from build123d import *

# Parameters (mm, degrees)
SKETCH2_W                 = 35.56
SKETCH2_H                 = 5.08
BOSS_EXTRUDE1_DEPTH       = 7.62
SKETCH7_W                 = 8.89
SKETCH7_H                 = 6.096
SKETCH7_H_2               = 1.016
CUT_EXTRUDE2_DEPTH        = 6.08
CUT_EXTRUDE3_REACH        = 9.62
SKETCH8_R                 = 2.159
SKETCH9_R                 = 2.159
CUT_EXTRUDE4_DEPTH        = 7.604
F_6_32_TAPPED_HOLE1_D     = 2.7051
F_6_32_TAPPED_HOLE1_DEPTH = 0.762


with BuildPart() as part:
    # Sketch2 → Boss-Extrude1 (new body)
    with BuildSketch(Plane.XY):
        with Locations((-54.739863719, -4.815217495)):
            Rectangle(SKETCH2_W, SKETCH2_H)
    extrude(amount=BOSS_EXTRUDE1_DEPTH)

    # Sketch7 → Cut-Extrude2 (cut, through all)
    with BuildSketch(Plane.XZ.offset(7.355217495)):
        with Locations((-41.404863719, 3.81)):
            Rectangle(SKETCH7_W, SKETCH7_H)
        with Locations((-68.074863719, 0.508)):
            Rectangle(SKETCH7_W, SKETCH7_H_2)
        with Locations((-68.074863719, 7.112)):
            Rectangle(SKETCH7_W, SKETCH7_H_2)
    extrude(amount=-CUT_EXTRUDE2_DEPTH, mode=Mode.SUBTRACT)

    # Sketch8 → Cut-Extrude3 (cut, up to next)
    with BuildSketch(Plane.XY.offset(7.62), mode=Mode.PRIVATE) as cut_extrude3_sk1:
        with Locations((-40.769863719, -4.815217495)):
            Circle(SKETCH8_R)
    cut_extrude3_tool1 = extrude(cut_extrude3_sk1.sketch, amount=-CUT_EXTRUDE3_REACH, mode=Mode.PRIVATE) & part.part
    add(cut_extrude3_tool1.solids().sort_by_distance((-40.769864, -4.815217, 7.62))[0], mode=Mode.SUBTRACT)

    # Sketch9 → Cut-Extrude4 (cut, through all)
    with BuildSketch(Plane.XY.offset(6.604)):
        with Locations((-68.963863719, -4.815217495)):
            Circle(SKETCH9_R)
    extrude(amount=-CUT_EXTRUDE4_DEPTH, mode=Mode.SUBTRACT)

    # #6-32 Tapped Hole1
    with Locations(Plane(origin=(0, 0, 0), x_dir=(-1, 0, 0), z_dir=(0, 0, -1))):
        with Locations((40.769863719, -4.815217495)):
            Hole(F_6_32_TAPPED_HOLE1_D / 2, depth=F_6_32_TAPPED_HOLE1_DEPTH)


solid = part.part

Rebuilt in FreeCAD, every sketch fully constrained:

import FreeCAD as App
import Part
import Sketcher
Q = App.Units.Quantity


def add_polygon(sketch, points):
    """Adds a closed chain of lines whose ends are joined by coincident constraints."""
    first, n = sketch.GeometryCount, len(points)
    for a, b in zip(points, points[1:] + points[:1]):
        sketch.addGeometry(Part.LineSegment(App.Vector(*a, 0), App.Vector(*b, 0)), False)
    for i in range(n):
        sketch.addConstraint(Sketcher.Constraint("Coincident", first + i, 2, first + (i + 1) % n, 1))

doc = App.newDocument("Part")
body = doc.addObject("PartDesign::Body", "Body")

# Sketch on XY plane
sketch1 = body.newObject("Sketcher::SketchObject", "Sketch")
sketch1.AttachmentSupport = (doc.getObject("XY_Plane"), [""])
sketch1.MapMode = "FlatFace"
add_polygon(sketch1, [(-72.519864, -2.275217), (-72.519864, -7.355217), (-36.959864, -7.355217), (-36.959864, -2.275217)])  # lines 0-3
sketch1.addConstraint(Sketcher.Constraint("Vertical", 0))
sketch1.addConstraint(Sketcher.Constraint("Horizontal", 1))
sketch1.addConstraint(Sketcher.Constraint("Vertical", 2))
sketch1.addConstraint(Sketcher.Constraint("Horizontal", 3))
sketch1.addConstraint(Sketcher.Constraint("DistanceX", 1, 1, 1, 2, Q("1.4 in")))
sketch1.addConstraint(Sketcher.Constraint("DistanceY", 0, 2, 0, 1, Q("0.2 in")))
sketch1.addConstraint(Sketcher.Constraint("DistanceX", 0, 2, -1, 1, 72.519864))
sketch1.addConstraint(Sketcher.Constraint("DistanceY", 0, 2, -1, 1, 7.355217))
pad1 = body.newObject("PartDesign::Pad", "Pad")
pad1.Profile = sketch1
pad1.Length = Q("0.3 in")

# Sketch on XZ plane
sketch2 = body.newObject("Sketcher::SketchObject", "Sketch001")
sketch2.AttachmentSupport = (doc.getObject("XZ_Plane"), [""])
sketch2.MapMode = "FlatFace"
sketch2.AttachmentOffset = App.Placement(App.Vector(0, 0, 7.355217), App.Rotation())
add_polygon(sketch2, [(-45.849864, 6.858), (-45.849864, 0.762), (-36.959864, 0.762), (-36.959864, 6.858)])  # lines 0-3
add_polygon(sketch2, [(-72.519864, 1.016), (-72.519864, 0), (-63.629864, 0), (-63.629864, 1.016)])  # lines 4-7
add_polygon(sketch2, [(-72.519864, 7.62), (-72.519864, 6.604), (-63.629864, 6.604), (-63.629864, 7.62)])  # lines 8-11
sketch2.addConstraint(Sketcher.Constraint("Vertical", 0))
sketch2.addConstraint(Sketcher.Constraint("Horizontal", 1))
sketch2.addConstraint(Sketcher.Constraint("Vertical", 2))
sketch2.addConstraint(Sketcher.Constraint("Horizontal", 3))
sketch2.addConstraint(Sketcher.Constraint("Vertical", 4))
sketch2.addConstraint(Sketcher.Constraint("Horizontal", 5))
sketch2.addConstraint(Sketcher.Constraint("Vertical", 6))
sketch2.addConstraint(Sketcher.Constraint("Horizontal", 7))
sketch2.addConstraint(Sketcher.Constraint("Vertical", 8))
sketch2.addConstraint(Sketcher.Constraint("Horizontal", 9))
sketch2.addConstraint(Sketcher.Constraint("Vertical", 10))
sketch2.addConstraint(Sketcher.Constraint("Horizontal", 11))
sketch2.addConstraint(Sketcher.Constraint("PointOnObject", 4, 2, -1))
sketch2.addConstraint(Sketcher.Constraint("Vertical", 7, 2, 8, 2))
sketch2.addConstraint(Sketcher.Constraint("Vertical", 6, 2, 9, 2))
sketch2.addConstraint(Sketcher.Constraint("Equal", 3, 5))
sketch2.addConstraint(Sketcher.Constraint("Equal", 6, 8))
sketch2.addConstraint(Sketcher.Constraint("DistanceX", 1, 1, 1, 2, Q("0.35 in")))
sketch2.addConstraint(Sketcher.Constraint("DistanceY", 0, 2, 0, 1, Q("0.24 in")))
sketch2.addConstraint(Sketcher.Constraint("DistanceY", 4, 2, 4, 1, Q("0.04 in")))
sketch2.addConstraint(Sketcher.Constraint("DistanceY", -1, 1, 10, 2, Q("0.3 in")))
sketch2.addConstraint(Sketcher.Constraint("DistanceX", 4, 2, 1, 2, Q("1.4 in")))
sketch2.addConstraint(Sketcher.Constraint("DistanceY", -1, 1, 0, 2, Q("0.03 in")))
sketch2.addConstraint(Sketcher.Constraint("DistanceX", 0, 2, -1, 1, 45.849864))
pocket1 = body.newObject("PartDesign::Pocket", "Pocket")
pocket1.Profile = sketch2
pocket1.Type = "ThroughAll"

# Sketch on XY plane
sketch3 = body.newObject("Sketcher::SketchObject", "Sketch002")
sketch3.AttachmentSupport = (doc.getObject("XY_Plane"), [""])
sketch3.MapMode = "FlatFace"
sketch3.AttachmentOffset = App.Placement(App.Vector(0, 0, 0.3 * 25.4), App.Rotation())
sketch3.addGeometry(Part.Circle(App.Vector(-40.769864, -4.815217, 0), App.Vector(0, 0, 1), 2.159), False)
sketch3.addConstraint(Sketcher.Constraint("Diameter", 0, Q("0.17 in")))
sketch3.addConstraint(Sketcher.Constraint("DistanceX", 0, 3, -1, 1, 40.769864))
sketch3.addConstraint(Sketcher.Constraint("DistanceY", 0, 3, -1, 1, 4.815217))
pocket2 = body.newObject("PartDesign::Pocket", "Pocket001")
pocket2.Profile = sketch3
pocket2.Type = "UpToFirst"

# Sketch on XY plane
sketch4 = body.newObject("Sketcher::SketchObject", "Sketch003")
sketch4.AttachmentSupport = (doc.getObject("XY_Plane"), [""])
sketch4.MapMode = "FlatFace"
sketch4.AttachmentOffset = App.Placement(App.Vector(0, 0, 0.26 * 25.4), App.Rotation())
sketch4.addGeometry(Part.Circle(App.Vector(-68.963864, -4.815217, 0), App.Vector(0, 0, 1), 2.159), False)
sketch4.addConstraint(Sketcher.Constraint("Diameter", 0, Q("0.17 in")))
sketch4.addConstraint(Sketcher.Constraint("DistanceX", 0, 3, -1, 1, 68.963864))
sketch4.addConstraint(Sketcher.Constraint("DistanceY", 0, 3, -1, 1, 4.815217))
pocket3 = body.newObject("PartDesign::Pocket", "Pocket002")
pocket3.Profile = sketch4
pocket3.Type = "ThroughAll"

# Sketch on XY plane
sketch5 = body.newObject("Sketcher::SketchObject", "Sketch004")
sketch5.AttachmentSupport = (doc.getObject("XY_Plane"), [""])
sketch5.MapMode = "FlatFace"
sketch5.addGeometry(Part.Circle(App.Vector(-40.769864, -4.815217, 0), App.Vector(0, 0, 1), 1.35255), False)
sketch5.addConstraint(Sketcher.Constraint("Diameter", 0, Q("0.1065 in")))
sketch5.addConstraint(Sketcher.Constraint("DistanceX", 0, 3, -1, 1, 40.769864))
sketch5.addConstraint(Sketcher.Constraint("DistanceY", 0, 3, -1, 1, 4.815217))
doc.recompute()
hole = body.newObject("PartDesign::Hole", "Hole")
hole.Profile = sketch5
hole.ThreadType = "None"
hole.Diameter = Q("0.1065 in")
hole.DepthType = "Dimension"
hole.Depth = Q("0.03 in")
hole.DrillPoint = "Flat"
hole.Reversed = True

doc.recompute()
